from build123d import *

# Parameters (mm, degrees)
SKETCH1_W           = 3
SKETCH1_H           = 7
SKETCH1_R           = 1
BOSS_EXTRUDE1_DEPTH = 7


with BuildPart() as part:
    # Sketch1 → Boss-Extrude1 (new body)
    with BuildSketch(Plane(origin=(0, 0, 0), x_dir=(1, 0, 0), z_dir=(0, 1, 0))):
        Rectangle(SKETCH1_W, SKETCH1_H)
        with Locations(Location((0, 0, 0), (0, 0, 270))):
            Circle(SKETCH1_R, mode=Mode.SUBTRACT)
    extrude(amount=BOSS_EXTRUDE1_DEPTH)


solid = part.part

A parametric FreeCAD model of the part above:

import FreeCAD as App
import Part
import Sketcher

V = App.Vector


def add_polygon(sketch, points):
    """Adds a closed chain of lines whose ends are joined by coincident constraints."""
    first, n = sketch.GeometryCount, len(points)
    for a, b in zip(points, points[1:] + points[:1]):
        sketch.addGeometry(Part.LineSegment(App.Vector(*a, 0), App.Vector(*b, 0)), False)
    for i in range(n):
        sketch.addConstraint(Sketcher.Constraint("Coincident", first + i, 2, first + (i + 1) % n, 1))

doc = App.newDocument("Part")
params = doc.addObject("Spreadsheet::Sheet", "Params")
for row, (alias, value) in enumerate([
    ("sketch1_diameter", "2 mm"),
    ("sketch1_width", "3 mm"),
    ("sketch1_height", "7 mm"),
    ("pad1_length", "7 mm"),
], start=1):
    params.set(f"A{row}", alias)
    params.set(f"B{row}", "=" + value)
    params.setAlias(f"B{row}", alias)

body = doc.addObject("PartDesign::Body", "Body")

# Sketch on XZ plane
sketch1 = body.newObject("Sketcher::SketchObject", "Sketch")
sketch1.AttachmentSupport = (doc.getObject("XZ_Plane"), [""])
sketch1.MapMode = "FlatFace"
add_polygon(sketch1, [(-1.5, -3.5), (-1.5, 3.5), (1.5, 3.5), (1.5, -3.5)])  # lines 0-3
sketch1.addGeometry(Part.Circle(V(0, 0, 0), V(0, 0, 1), 1), False)  # 4
sketch1.addConstraint([
    Sketcher.Constraint("Vertical", 0),
    Sketcher.Constraint("Horizontal", 1),
    Sketcher.Constraint("Vertical", 2),
    Sketcher.Constraint("Horizontal", 3),
    Sketcher.Constraint("Coincident", 4, 3, -1, 1),
    Sketcher.Constraint("Symmetric", 0, 2, 2, 2, -1, 1),
    Sketcher.Constraint("Diameter", 4, 2.0),
    Sketcher.Constraint("DistanceX", 1, 1, 1, 2, 3.0),
    Sketcher.Constraint("DistanceY", 0, 1, 0, 2, 7.0),
])
sketch1.setExpression("Constraints[10]", "Params.sketch1_diameter")
sketch1.setExpression("Constraints[11]", "Params.sketch1_width")
sketch1.setExpression("Constraints[12]", "Params.sketch1_height")
pad1 = body.newObject("PartDesign::Pad", "Pad")
pad1.Profile = sketch1
pad1.setExpression("Length", "Params.pad1_length")
pad1.Reversed = True

doc.recompute()
